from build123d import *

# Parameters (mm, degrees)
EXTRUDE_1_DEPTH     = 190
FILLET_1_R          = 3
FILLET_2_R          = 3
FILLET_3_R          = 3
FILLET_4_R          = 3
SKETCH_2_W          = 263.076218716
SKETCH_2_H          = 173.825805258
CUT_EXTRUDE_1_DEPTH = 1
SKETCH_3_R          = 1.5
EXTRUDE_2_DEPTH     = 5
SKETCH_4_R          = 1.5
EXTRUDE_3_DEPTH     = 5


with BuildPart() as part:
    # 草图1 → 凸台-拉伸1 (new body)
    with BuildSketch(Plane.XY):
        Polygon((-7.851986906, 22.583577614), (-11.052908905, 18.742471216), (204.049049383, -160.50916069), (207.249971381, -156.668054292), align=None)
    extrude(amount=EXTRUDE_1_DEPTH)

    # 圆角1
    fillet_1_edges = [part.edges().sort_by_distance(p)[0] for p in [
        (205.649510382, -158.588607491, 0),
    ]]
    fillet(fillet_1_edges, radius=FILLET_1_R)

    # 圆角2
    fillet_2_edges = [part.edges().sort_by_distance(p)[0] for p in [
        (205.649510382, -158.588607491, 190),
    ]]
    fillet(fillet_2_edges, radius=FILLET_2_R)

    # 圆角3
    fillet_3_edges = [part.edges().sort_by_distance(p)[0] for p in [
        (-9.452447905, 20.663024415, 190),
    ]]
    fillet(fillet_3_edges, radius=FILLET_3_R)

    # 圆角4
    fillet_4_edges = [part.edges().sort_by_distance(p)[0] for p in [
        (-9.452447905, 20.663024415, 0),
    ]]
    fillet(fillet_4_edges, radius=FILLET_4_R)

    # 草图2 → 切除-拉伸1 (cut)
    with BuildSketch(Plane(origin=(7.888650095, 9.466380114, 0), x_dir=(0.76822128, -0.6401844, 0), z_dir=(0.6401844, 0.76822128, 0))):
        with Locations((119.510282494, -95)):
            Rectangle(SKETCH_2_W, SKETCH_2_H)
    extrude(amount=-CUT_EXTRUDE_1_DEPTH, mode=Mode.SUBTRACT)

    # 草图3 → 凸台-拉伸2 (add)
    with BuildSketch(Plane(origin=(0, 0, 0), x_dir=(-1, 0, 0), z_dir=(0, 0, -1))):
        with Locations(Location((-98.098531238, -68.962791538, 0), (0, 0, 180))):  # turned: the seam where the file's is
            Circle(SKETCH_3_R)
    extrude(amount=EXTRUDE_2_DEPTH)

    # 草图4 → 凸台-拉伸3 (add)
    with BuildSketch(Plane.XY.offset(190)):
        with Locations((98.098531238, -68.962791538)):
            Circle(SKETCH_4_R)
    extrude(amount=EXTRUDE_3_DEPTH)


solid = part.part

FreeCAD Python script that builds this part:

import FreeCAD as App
import Part
import Sketcher
from FreeCAD import Vector
Q = App.Units.Quantity


def edges_at(feature, points):
    """Names of the edges that pass closest to the given points."""
    edges = feature.Shape.Edges
    near = lambda p: min(range(len(edges)), key=lambda i: edges[i].distToShape(Part.Vertex(*p))[0])
    return sorted({f"Edge{near(p) + 1}" for p in points})


def add_polygon(sketch, points):
    """Adds a closed chain of lines whose ends are joined by coincident constraints."""
    first, n = sketch.GeometryCount, len(points)
    for a, b in zip(points, points[1:] + points[:1]):
        sketch.addGeometry(Part.LineSegment(App.Vector(*a, 0), App.Vector(*b, 0)), False)
    for i in range(n):
        sketch.addConstraint(Sketcher.Constraint("Coincident", first + i, 2, first + (i + 1) % n, 1))

doc = App.newDocument("Part")
body = doc.addObject("PartDesign::Body", "Body")

sketch1 = body.newObject("Sketcher::SketchObject", "Sketch")
sketch1.AttachmentSupport = (doc.getObject("XY_Plane"), [""])
sketch1.MapMode = "FlatFace"
add_polygon(sketch1, [(-7.9, 22.6), (-11.1, 18.7), (204, -160.5), (207.2, -156.7)])
sketch1.addConstraint([
    Sketcher.Constraint("Perpendicular", 0, 1),
    Sketcher.Constraint("Perpendicular", 1, 2),
    Sketcher.Constraint("Perpendicular", 2, 3),
    Sketcher.Constraint("Distance", 0, Q("5 mm")),
    Sketcher.Constraint("Distance", 1, Q("280 mm")),
    Sketcher.Constraint("DistanceX", 0, 2, -1, 1, Q("11.052909 mm")),
    Sketcher.Constraint("DistanceY", -1, 1, 0, 2, Q("18.742471 mm")),
    Sketcher.Constraint("DistanceX", -1, 1, 1, 2, Q("204.049049 mm")),
])
pad1 = body.newObject("PartDesign::Pad", "Pad")
pad1.Profile = sketch1
pad1.Length = 190
doc.recompute()

fillet = body.newObject("PartDesign::Fillet", "Fillet")
fillet.Base = (pad1, edges_at(pad1, [(205.65, -158.589, 0)]))
fillet.Radius = 3
doc.recompute()

fillet2 = body.newObject("PartDesign::Fillet", "Fillet001")
fillet2.Base = (fillet, edges_at(fillet, [(205.65, -158.589, 190)]))
fillet2.Radius = 3
doc.recompute()

fillet3 = body.newObject("PartDesign::Fillet", "Fillet002")
fillet3.Base = (fillet2, edges_at(fillet2, [(-9.452, 20.663, 190)]))
fillet3.Radius = 3
doc.recompute()

fillet4 = body.newObject("PartDesign::Fillet", "Fillet003")
fillet4.Base = (fillet3, edges_at(fillet3, [(-9.452, 20.663, 0)]))
fillet4.Radius = 3

sketch2 = body.newObject("Sketcher::SketchObject", "Sketch001")
sketch2.Placement = App.Placement(Vector(7.88865, 9.46638, 0), App.Rotation(Vector(0.76822128, -0.6401844, 0), Vector(0, 0, -1.000000001), Vector(0.6401844, 0.76822128, 0), "ZXY"))
add_polygon(sketch2, [(-12, -8), (-12, -182), (251, -182), (251, -8)])
sketch2.addConstraint([
    Sketcher.Constraint("Vertical", 0),
    Sketcher.Constraint("Horizontal", 1),
    Sketcher.Constraint("Vertical", 2),
    Sketcher.Constraint("Horizontal", 3),
    Sketcher.Constraint("DistanceX", 1, 1, 1, 2, Q("263.076219 mm")),
    Sketcher.Constraint("DistanceY", 0, 2, 0, 1, Q("173.825806 mm")),
    Sketcher.Constraint("DistanceX", 0, 2, -1, 1, Q("12.027827 mm")),
    Sketcher.Constraint("DistanceY", 0, 2, -1, 1, Q("181.912903 mm")),
])
pocket1 = body.newObject("PartDesign::Pocket", "Pocket")
pocket1.Profile = sketch2
pocket1.Length = 1

sketch3 = body.newObject("Sketcher::SketchObject", "Sketch002")
sketch3.AttachmentSupport = (doc.getObject("XY_Plane"), [""])
sketch3.MapMode = "FlatFace"
sketch3.addGeometry(Part.Circle(Vector(98.1, -69, 0), Vector(0, 0, 1), 1.5), False)
sketch3.addConstraint([
    Sketcher.Constraint("Diameter", 0, Q("3 mm")),
    Sketcher.Constraint("DistanceX", -1, 1, 0, 3, Q("98.098531 mm")),
    Sketcher.Constraint("DistanceY", 0, 3, -1, 1, Q("68.962792 mm")),
])
pad2 = body.newObject("PartDesign::Pad", "Pad001")
pad2.Profile = sketch3
pad2.Length = 5
pad2.Reversed = True

sketch4 = body.newObject("Sketcher::SketchObject", "Sketch003")
sketch4.AttachmentSupport = (doc.getObject("XY_Plane"), [""])
sketch4.MapMode = "FlatFace"
sketch4.AttachmentOffset = App.Placement(Vector(0, 0, 190), App.Rotation())
sketch4.addGeometry(Part.Circle(Vector(98.1, -69, 0), Vector(0, 0, 1), 1.5), False)
sketch4.addConstraint([
    Sketcher.Constraint("Diameter", 0, Q("3 mm")),
    Sketcher.Constraint("DistanceX", -1, 1, 0, 3, Q("98.098531 mm")),
    Sketcher.Constraint("DistanceY", 0, 3, -1, 1, Q("68.962792 mm")),
])
pad3 = body.newObject("PartDesign::Pad", "Pad002")
pad3.Profile = sketch4
pad3.Length = 5

doc.recompute()
